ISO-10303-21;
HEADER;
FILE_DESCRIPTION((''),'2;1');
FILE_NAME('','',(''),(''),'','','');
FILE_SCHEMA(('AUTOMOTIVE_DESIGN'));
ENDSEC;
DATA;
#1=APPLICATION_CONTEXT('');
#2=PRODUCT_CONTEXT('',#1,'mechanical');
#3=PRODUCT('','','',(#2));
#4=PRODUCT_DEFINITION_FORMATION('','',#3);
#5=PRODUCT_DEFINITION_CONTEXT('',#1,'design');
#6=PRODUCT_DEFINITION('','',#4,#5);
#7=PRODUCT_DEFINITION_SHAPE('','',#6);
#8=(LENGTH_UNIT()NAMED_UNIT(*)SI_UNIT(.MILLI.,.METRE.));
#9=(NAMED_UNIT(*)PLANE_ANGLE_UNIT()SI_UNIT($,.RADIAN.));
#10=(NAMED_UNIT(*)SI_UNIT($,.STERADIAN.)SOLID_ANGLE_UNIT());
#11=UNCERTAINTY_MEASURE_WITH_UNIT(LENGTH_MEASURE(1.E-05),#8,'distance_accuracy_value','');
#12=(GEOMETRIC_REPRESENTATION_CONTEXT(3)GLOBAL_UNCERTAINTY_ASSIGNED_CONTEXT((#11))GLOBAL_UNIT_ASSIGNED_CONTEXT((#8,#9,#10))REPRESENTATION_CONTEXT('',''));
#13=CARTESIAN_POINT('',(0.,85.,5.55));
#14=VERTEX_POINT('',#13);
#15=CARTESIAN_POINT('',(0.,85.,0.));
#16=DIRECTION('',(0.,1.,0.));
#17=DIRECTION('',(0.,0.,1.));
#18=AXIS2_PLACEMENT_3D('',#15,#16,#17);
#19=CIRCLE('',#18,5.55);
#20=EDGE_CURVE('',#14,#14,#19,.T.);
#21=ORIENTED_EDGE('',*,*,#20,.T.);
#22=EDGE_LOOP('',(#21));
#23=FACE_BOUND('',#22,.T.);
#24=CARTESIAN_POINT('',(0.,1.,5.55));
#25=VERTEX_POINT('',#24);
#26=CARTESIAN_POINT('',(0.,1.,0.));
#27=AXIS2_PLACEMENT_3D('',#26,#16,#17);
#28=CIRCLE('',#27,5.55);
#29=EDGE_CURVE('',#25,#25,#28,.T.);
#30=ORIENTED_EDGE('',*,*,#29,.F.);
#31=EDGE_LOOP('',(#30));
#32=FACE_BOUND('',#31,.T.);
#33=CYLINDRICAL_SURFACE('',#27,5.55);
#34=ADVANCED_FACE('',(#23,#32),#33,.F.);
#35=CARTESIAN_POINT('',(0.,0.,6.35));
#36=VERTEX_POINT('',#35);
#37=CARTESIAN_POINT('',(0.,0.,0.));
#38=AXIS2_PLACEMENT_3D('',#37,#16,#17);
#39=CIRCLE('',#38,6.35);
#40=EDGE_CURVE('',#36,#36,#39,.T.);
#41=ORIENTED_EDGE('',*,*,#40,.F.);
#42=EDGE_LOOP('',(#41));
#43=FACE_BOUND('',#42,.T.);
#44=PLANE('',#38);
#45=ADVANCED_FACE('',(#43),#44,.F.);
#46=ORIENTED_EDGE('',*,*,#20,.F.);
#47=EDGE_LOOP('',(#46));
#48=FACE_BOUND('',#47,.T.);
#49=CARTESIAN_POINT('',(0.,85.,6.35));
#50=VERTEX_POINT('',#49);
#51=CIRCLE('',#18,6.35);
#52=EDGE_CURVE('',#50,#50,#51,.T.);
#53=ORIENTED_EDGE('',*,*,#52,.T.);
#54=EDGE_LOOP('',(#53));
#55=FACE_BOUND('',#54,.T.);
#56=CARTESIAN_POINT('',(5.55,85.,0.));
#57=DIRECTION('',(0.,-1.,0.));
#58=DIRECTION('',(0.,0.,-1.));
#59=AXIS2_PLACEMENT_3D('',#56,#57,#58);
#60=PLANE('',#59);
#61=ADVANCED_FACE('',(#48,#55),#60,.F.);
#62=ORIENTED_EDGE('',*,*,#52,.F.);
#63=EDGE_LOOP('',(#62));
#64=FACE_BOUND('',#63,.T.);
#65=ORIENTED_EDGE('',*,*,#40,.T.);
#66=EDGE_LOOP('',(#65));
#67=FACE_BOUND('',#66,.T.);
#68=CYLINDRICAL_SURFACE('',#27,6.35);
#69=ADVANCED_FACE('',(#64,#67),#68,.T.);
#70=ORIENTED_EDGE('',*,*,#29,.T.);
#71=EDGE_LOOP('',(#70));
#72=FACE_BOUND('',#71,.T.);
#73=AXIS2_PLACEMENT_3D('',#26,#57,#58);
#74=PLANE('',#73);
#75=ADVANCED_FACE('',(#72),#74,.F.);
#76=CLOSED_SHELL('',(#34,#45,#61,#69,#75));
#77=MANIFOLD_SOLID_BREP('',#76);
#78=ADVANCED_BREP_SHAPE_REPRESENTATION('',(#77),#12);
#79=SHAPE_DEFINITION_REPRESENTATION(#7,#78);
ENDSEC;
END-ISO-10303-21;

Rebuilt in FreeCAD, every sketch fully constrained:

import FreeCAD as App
import Part
import Sketcher
from FreeCAD import Vector
Q = App.Units.Quantity

doc = App.newDocument("Part")
params = doc.addObject("Spreadsheet::Sheet", "Params")
for row, (alias, value) in enumerate([
    ("sketch1_height", "85 mm"),
    ("sketch1_height2", "84 mm"),
    ("sketch1_width", "0.8 mm"),
    ("sketch1_width2", "6.35 mm"),
    ("revolution_angle", "360 deg"),
], start=1):
    params.set(f"A{row}", alias)
    params.set(f"B{row}", "=" + value)
    params.setAlias(f"B{row}", alias)

body = doc.addObject("PartDesign::Body", "Body")

# Sketch on XY plane
sketch1 = doc.addObject("Sketcher::SketchObject", "Sketch")
body.addObject(sketch1)
sketch1.AttachmentSupport = (doc.XY_Plane, [""])
sketch1.MapMode = "FlatFace"
sketch1.addGeometry(Part.LineSegment(Vector(0, 0, 0), Vector(6.3, 0, 0)), False)
sketch1.addGeometry(Part.LineSegment(Vector(6.3, 0, 0), Vector(6.3, 85, 0)), False)
sketch1.addGeometry(Part.LineSegment(Vector(6.3, 85, 0), Vector(5.5, 85, 0)), False)
sketch1.addGeometry(Part.LineSegment(Vector(5.5, 85, 0), Vector(5.5, 1, 0)), False)
sketch1.addGeometry(Part.LineSegment(Vector(5.5, 1, 0), Vector(0, 1, 0)), False)
sketch1.addGeometry(Part.LineSegment(Vector(0, 1, 0), Vector(0, 0, 0)), False)
sketch1.addConstraint(Sketcher.Constraint("Coincident", 0, 2, 1, 1))
sketch1.addConstraint(Sketcher.Constraint("Coincident", 1, 2, 2, 1))
sketch1.addConstraint(Sketcher.Constraint("Coincident", 2, 2, 3, 1))
sketch1.addConstraint(Sketcher.Constraint("Coincident", 3, 2, 4, 1))
sketch1.addConstraint(Sketcher.Constraint("Coincident", 4, 2, 5, 1))
sketch1.addConstraint(Sketcher.Constraint("Coincident", 5, 2, 0, 1))
sketch1.addConstraint(Sketcher.Constraint("Horizontal", 0))
sketch1.addConstraint(Sketcher.Constraint("Vertical", 1))
sketch1.addConstraint(Sketcher.Constraint("Horizontal", 2))
sketch1.addConstraint(Sketcher.Constraint("Vertical", 3))
sketch1.addConstraint(Sketcher.Constraint("Horizontal", 4))
sketch1.addConstraint(Sketcher.Constraint("Vertical", 5))
sketch1.addConstraint(Sketcher.Constraint("Coincident", 5, 2, -1, 1))
sketch1.addConstraint(Sketcher.Constraint("DistanceY", 1, 1, 1, 2, Q("85 mm")))
sketch1.addConstraint(Sketcher.Constraint("DistanceY", 3, 2, 3, 1, Q("84 mm")))
sketch1.addConstraint(Sketcher.Constraint("DistanceX", 2, 2, 2, 1, Q("0.8 mm")))
sketch1.addConstraint(Sketcher.Constraint("DistanceX", 0, 1, 0, 2, Q("6.35 mm")))
sketch1.setExpression("Constraints[13]", "Params.sketch1_height")
sketch1.setExpression("Constraints[14]", "Params.sketch1_height2")
sketch1.setExpression("Constraints[15]", "Params.sketch1_width")
sketch1.setExpression("Constraints[16]", "Params.sketch1_width2")
revolution = doc.addObject("PartDesign::Revolution", "Revolution")
body.addObject(revolution)
revolution.Profile = sketch1
revolution.ReferenceAxis = (sketch1, ["V_Axis"])
revolution.setExpression("Angle", "Params.revolution_angle")

doc.recompute()
